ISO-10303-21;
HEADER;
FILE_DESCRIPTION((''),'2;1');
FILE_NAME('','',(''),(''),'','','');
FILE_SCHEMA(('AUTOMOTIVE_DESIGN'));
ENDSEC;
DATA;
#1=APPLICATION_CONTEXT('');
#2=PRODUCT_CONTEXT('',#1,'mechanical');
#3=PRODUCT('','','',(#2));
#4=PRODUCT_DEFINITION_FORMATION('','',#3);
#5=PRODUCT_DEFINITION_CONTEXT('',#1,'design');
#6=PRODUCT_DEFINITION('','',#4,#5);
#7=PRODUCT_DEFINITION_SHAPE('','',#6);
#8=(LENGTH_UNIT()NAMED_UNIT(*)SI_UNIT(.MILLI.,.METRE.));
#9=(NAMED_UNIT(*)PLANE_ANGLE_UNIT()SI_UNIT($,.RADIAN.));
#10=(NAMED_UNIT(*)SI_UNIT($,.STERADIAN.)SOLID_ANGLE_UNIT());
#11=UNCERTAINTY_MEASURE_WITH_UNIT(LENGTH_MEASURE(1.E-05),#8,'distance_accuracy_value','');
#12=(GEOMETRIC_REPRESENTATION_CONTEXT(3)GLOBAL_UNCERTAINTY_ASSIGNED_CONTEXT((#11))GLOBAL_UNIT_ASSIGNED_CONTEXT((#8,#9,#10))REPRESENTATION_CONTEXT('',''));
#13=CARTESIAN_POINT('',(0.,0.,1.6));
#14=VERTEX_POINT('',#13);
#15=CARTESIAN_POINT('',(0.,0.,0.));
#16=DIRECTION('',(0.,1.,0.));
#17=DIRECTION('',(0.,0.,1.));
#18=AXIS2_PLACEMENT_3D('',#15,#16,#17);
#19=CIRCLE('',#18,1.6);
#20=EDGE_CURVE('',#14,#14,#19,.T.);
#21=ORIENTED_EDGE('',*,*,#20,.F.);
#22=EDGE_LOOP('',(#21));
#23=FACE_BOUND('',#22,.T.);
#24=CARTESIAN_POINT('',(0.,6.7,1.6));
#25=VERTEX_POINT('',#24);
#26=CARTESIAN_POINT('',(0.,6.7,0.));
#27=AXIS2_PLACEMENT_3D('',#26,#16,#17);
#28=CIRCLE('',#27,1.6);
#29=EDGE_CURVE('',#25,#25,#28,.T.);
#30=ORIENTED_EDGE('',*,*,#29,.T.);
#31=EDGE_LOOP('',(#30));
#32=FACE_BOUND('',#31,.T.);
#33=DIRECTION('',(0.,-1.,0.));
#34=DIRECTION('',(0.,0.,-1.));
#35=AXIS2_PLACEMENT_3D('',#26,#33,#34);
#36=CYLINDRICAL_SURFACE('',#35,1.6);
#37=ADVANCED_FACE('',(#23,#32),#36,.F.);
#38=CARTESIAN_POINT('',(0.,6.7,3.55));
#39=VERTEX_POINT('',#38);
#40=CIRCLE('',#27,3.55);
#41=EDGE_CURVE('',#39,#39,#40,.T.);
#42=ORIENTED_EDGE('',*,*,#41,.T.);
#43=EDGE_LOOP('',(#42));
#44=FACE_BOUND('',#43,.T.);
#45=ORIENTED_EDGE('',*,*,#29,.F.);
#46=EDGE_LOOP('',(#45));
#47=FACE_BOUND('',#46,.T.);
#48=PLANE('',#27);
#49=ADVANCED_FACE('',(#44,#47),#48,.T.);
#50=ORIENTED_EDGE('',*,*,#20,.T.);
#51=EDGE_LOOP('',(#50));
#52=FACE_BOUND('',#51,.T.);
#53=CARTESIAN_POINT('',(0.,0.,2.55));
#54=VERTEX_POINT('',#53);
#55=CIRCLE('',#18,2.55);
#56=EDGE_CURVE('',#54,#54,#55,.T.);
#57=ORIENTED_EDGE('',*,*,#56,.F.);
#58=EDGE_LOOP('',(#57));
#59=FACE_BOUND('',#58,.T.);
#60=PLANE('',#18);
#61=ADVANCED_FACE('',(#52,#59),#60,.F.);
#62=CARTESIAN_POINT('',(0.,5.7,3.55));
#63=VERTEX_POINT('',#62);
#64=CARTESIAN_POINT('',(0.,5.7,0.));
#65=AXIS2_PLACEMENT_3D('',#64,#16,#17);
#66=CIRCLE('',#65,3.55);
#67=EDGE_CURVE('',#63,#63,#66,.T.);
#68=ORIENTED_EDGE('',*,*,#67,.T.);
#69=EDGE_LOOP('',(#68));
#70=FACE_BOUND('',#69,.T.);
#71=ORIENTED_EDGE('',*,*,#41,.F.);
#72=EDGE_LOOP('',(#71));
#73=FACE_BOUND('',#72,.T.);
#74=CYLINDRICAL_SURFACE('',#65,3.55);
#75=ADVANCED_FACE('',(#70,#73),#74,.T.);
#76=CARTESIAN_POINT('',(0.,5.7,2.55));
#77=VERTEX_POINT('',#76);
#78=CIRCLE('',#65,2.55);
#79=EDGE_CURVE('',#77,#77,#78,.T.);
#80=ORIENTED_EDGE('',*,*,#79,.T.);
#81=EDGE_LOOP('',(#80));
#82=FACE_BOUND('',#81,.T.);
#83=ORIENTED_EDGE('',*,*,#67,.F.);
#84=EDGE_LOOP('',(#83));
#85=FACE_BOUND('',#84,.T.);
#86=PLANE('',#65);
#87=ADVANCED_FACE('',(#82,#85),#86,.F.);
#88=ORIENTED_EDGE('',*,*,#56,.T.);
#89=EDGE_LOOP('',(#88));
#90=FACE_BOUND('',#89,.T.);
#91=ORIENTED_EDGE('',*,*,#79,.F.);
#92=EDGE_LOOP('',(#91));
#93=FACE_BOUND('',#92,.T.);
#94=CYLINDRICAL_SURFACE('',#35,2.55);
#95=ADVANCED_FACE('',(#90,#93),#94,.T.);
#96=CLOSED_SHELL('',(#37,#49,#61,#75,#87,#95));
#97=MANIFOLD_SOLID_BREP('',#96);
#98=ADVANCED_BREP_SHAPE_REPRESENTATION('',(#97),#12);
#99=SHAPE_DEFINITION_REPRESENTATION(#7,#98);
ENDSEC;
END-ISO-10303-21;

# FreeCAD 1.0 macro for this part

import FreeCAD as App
import Part
import Sketcher
from FreeCAD import Vector

doc = App.newDocument("Part")
body = doc.addObject("PartDesign::Body", "Body")

sketch1 = body.newObject("Sketcher::SketchObject", "Sketch")
sketch1.AttachmentSupport = (doc.getObject("XZ_Plane"), [""])
sketch1.MapMode = "FlatFace"
sketch1.addGeometry([
    Part.Circle(Vector(0, 0, 0), Vector(0, 0, 1), 2.5),
    Part.Circle(Vector(0, 0, 0), Vector(0, 0, 1), 1.6),
], False)
sketch1.addConstraint([
    Sketcher.Constraint("Coincident", 0, 3, -1, 1),
    Sketcher.Constraint("Coincident", 1, 3, -1, 1),
    Sketcher.Constraint("Diameter", 0, 5.1),
    Sketcher.Constraint("Diameter", 1, 3.2),
])
pad1 = body.newObject("PartDesign::Pad", "Pad")
pad1.Profile = sketch1
pad1.Length = 6.7
pad1.Reversed = True

sketch2 = body.newObject("Sketcher::SketchObject", "Sketch001")
sketch2.AttachmentSupport = (doc.getObject("XZ_Plane"), [""])
sketch2.MapMode = "FlatFace"
sketch2.AttachmentOffset = App.Placement(Vector(0, 0, -6.7), App.Rotation())
sketch2.addGeometry([
    Part.Circle(Vector(0, 0, 0), Vector(0, 0, 1), 3.5),
    Part.Circle(Vector(0, 0, 0), Vector(0, 0, 1), 1.6),
], False)
sketch2.addConstraint([
    Sketcher.Constraint("Coincident", 0, 3, -1, 1),
    Sketcher.Constraint("Coincident", 1, 3, -1, 1),
    Sketcher.Constraint("Diameter", 0, 7.1),
    Sketcher.Constraint("Diameter", 1, 3.2),
])
pad2 = body.newObject("PartDesign::Pad", "Pad001")
pad2.Profile = sketch2
pad2.Length = 1

doc.recompute()
